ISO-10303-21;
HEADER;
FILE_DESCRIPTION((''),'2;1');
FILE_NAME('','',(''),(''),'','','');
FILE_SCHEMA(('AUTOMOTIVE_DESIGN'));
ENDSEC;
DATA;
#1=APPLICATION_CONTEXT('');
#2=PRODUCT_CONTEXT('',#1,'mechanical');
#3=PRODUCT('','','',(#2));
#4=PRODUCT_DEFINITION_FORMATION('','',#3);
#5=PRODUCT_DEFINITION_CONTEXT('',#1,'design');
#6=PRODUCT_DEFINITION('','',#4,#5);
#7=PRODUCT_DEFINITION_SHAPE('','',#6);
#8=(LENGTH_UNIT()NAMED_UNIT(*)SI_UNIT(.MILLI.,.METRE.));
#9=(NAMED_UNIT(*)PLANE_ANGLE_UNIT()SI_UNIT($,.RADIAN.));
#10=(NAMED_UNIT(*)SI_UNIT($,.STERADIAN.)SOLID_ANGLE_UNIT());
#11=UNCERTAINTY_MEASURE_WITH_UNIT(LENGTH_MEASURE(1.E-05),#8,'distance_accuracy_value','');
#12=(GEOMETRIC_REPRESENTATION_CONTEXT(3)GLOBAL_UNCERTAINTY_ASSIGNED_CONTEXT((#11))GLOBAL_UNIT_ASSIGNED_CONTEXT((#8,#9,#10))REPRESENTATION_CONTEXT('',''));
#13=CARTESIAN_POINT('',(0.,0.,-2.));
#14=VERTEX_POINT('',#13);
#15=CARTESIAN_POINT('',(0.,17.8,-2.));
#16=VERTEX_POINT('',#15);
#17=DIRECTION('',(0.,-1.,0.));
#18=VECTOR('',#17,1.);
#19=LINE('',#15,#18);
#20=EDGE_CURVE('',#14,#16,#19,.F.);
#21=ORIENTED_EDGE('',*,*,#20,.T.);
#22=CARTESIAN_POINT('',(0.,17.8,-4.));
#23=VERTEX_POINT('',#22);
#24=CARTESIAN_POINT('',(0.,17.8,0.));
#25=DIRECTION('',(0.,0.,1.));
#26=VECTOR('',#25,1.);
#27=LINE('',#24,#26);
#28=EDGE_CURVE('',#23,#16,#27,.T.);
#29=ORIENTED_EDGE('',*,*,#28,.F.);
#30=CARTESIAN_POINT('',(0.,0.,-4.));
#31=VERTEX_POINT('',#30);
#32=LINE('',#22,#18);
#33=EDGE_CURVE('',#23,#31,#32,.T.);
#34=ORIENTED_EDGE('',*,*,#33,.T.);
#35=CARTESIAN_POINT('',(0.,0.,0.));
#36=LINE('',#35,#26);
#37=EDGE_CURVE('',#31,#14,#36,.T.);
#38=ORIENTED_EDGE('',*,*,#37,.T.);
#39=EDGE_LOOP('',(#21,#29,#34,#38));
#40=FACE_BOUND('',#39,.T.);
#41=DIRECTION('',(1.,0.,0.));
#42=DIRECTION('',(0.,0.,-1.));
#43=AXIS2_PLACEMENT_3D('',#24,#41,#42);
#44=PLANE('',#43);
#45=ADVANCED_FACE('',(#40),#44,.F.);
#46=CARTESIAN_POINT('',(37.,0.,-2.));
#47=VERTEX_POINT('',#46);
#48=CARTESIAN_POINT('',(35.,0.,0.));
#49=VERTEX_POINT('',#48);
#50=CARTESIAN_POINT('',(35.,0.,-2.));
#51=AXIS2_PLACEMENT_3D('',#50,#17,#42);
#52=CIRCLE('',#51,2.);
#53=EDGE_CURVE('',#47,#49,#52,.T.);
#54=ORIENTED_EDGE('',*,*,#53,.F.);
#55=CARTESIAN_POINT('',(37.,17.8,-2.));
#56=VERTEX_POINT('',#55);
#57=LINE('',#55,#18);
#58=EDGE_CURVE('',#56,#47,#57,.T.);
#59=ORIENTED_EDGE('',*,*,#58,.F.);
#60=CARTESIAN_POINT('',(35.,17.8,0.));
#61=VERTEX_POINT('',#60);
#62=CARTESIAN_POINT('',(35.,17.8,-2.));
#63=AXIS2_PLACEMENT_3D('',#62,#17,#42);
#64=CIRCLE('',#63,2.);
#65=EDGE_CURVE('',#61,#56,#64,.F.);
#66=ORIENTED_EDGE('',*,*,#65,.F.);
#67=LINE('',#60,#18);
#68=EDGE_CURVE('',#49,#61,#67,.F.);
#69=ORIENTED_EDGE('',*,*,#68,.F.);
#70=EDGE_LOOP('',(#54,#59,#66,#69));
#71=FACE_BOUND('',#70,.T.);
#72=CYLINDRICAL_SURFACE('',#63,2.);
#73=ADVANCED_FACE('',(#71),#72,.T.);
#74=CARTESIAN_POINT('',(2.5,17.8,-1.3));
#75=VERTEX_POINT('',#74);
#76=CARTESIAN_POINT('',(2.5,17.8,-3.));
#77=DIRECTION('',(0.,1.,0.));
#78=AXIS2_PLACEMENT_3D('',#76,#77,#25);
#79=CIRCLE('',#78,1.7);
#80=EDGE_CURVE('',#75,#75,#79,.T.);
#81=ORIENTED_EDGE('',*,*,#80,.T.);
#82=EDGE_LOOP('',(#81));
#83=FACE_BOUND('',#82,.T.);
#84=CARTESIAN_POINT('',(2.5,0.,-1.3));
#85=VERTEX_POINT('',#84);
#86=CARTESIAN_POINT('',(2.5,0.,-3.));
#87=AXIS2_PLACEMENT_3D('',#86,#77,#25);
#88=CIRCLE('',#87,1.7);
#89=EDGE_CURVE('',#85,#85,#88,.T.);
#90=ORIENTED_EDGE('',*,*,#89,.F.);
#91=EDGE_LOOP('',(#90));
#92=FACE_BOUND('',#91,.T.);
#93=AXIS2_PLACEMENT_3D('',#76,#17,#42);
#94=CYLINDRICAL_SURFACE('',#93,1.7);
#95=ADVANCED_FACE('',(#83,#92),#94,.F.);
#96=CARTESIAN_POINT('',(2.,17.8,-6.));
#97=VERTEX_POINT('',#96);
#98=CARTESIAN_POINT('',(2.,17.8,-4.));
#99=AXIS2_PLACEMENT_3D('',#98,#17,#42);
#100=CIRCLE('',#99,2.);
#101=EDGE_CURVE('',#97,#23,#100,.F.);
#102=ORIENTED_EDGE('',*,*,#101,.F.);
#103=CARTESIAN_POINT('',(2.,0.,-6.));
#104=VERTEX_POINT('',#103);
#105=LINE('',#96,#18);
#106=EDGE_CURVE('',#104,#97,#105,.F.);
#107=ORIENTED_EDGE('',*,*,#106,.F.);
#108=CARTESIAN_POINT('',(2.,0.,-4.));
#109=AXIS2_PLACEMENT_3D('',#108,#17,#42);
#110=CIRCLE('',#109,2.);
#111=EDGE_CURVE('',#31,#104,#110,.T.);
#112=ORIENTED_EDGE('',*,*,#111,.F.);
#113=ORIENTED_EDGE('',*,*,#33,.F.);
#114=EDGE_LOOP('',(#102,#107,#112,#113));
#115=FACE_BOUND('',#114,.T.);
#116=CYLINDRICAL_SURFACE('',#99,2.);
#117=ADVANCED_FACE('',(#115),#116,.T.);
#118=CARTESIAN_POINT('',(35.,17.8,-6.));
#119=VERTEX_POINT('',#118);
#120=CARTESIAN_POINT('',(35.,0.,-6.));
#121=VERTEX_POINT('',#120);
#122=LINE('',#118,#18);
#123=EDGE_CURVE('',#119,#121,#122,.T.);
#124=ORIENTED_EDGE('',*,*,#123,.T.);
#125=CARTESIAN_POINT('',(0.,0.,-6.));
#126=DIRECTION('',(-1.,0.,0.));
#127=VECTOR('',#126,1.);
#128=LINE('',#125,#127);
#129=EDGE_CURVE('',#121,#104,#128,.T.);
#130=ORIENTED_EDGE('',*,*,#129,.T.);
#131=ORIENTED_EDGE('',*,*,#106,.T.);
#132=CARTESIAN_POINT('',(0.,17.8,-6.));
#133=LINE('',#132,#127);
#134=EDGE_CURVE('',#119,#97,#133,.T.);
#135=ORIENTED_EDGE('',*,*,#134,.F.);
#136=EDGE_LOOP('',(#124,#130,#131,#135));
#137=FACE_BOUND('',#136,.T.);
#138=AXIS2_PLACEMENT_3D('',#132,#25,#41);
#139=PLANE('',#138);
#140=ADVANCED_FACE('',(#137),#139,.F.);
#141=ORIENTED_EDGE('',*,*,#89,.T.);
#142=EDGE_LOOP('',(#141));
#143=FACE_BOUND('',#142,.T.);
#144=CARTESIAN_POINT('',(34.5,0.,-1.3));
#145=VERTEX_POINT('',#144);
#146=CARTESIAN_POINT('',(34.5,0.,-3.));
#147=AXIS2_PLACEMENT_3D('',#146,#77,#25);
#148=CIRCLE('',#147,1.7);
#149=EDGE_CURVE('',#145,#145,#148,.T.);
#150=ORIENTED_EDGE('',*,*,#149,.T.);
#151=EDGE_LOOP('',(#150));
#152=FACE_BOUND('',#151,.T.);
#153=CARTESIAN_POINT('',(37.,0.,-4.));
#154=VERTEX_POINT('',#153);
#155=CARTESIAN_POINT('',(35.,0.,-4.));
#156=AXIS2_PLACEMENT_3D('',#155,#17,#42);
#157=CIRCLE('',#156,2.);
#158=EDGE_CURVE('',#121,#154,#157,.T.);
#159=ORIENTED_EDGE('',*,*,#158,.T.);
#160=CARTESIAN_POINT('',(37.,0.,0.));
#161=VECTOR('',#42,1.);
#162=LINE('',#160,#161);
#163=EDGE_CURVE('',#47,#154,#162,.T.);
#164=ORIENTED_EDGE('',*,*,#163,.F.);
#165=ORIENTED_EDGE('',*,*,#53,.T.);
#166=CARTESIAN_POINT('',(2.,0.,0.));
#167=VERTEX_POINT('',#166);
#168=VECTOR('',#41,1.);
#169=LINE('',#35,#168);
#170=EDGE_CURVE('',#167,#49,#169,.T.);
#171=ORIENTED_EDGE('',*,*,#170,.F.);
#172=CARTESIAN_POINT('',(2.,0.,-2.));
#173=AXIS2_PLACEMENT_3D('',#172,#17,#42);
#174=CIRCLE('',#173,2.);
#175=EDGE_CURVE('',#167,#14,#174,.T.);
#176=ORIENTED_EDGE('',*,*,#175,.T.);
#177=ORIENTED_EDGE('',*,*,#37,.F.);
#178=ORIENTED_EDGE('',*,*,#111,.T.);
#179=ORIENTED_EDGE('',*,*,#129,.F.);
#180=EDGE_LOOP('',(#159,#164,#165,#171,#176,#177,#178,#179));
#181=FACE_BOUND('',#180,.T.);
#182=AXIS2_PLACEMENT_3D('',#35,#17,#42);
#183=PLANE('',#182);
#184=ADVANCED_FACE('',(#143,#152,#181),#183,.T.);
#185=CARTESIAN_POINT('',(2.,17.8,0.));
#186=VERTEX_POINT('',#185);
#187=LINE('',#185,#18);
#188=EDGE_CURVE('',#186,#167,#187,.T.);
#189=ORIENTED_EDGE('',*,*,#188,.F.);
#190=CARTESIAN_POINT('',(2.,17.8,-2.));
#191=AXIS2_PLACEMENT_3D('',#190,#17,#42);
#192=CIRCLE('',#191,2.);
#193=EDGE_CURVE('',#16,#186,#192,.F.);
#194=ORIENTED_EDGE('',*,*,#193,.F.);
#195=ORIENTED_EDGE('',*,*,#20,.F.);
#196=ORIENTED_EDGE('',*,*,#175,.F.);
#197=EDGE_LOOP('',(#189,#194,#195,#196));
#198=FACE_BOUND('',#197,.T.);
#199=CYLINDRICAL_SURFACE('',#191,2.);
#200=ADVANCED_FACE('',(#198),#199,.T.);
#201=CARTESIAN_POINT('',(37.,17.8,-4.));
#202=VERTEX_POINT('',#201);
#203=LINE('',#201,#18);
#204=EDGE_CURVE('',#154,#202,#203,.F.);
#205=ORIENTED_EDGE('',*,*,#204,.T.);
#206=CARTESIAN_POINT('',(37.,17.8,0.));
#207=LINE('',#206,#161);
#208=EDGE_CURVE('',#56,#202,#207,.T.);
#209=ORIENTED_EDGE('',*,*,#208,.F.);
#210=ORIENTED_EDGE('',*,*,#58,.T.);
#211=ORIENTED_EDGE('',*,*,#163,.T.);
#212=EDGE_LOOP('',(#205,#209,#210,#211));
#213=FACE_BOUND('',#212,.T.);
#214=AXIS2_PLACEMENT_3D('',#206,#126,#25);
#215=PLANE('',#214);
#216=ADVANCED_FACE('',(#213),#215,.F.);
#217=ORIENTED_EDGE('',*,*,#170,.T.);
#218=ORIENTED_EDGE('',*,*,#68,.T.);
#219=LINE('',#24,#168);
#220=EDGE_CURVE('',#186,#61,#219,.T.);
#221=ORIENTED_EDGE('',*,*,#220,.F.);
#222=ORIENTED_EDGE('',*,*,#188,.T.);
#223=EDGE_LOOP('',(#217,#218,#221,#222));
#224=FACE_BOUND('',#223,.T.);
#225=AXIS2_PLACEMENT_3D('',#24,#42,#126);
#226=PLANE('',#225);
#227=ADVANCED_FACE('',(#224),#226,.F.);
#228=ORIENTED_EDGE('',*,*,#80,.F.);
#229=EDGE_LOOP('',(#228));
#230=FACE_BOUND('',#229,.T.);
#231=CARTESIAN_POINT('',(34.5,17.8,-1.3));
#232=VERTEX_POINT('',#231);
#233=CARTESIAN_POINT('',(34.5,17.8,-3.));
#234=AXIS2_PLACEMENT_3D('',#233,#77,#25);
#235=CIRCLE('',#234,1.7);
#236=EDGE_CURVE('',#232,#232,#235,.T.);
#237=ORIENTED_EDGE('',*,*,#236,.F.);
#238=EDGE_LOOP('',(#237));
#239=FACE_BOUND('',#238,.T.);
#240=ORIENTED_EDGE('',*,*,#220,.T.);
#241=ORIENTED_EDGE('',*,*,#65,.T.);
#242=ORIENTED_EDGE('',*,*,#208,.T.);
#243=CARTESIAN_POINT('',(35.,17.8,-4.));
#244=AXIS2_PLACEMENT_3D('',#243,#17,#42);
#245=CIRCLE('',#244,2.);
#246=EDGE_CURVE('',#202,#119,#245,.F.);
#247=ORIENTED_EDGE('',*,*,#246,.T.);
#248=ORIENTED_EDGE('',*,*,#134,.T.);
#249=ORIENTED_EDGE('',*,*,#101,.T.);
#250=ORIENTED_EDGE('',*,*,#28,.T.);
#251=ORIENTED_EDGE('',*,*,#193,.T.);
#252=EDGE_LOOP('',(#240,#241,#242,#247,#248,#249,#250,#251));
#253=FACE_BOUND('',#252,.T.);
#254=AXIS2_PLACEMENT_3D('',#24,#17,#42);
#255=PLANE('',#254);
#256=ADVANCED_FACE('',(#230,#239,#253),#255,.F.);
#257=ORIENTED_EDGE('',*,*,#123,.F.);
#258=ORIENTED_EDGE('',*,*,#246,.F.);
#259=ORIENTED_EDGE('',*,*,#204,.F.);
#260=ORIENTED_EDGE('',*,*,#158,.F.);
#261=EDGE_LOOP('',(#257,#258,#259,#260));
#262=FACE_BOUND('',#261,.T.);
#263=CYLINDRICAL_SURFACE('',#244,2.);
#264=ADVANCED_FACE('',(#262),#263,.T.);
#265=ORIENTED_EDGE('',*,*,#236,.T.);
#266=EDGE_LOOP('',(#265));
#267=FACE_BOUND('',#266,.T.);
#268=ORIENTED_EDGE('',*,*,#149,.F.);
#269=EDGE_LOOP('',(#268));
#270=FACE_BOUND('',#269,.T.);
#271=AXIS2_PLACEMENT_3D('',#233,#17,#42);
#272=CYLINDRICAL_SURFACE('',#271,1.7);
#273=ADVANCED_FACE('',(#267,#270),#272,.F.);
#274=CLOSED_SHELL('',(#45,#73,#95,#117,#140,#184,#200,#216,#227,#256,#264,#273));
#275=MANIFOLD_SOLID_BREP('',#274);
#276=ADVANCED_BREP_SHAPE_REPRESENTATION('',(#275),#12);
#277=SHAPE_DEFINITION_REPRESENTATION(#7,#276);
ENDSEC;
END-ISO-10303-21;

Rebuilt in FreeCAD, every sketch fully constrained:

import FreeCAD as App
import Part
import Sketcher
from FreeCAD import Vector
Q = App.Units.Quantity


def edges_at(feature, points):
    """Names of the edges that pass closest to the given points."""
    edges = feature.Shape.Edges
    near = lambda p: min(range(len(edges)), key=lambda i: edges[i].distToShape(Part.Vertex(*p))[0])
    return sorted({f"Edge{near(p) + 1}" for p in points})


def add_polygon(sketch, points):
    """Adds a closed chain of lines whose ends are joined by coincident constraints."""
    first, n = sketch.GeometryCount, len(points)
    for a, b in zip(points, points[1:] + points[:1]):
        sketch.addGeometry(Part.LineSegment(App.Vector(*a, 0), App.Vector(*b, 0)), False)
    for i in range(n):
        sketch.addConstraint(Sketcher.Constraint("Coincident", first + i, 2, first + (i + 1) % n, 1))

doc = App.newDocument("Part")
body = doc.addObject("PartDesign::Body", "Body")

sketch1 = body.newObject("Sketcher::SketchObject", "Sketch")
sketch1.AttachmentSupport = (doc.getObject("XZ_Plane"), [""])
sketch1.MapMode = "FlatFace"
add_polygon(sketch1, [(0, -6), (0, 0), (37, 0), (37, -6)])
sketch1.addGeometry(Part.Circle(Vector(2.5, -3, 0), Vector(0, 0, 1), 1.7), False)
sketch1.addGeometry(Part.Circle(Vector(34.5, -3, 0), Vector(0, 0, 1), 1.7), False)
sketch1.addConstraint([
    Sketcher.Constraint("Vertical", 0),
    Sketcher.Constraint("Horizontal", 1),
    Sketcher.Constraint("Vertical", 2),
    Sketcher.Constraint("Horizontal", 3),
    Sketcher.Constraint("Coincident", 0, 2, -1, 1),
    Sketcher.Constraint("Equal", 4, 5),
    Sketcher.Constraint("Horizontal", 4, 3, 5, 3),
    Sketcher.Constraint("Diameter", 4, Q("3.4 mm")),
    Sketcher.Constraint("DistanceX", 1, 1, 1, 2, Q("37 mm")),
    Sketcher.Constraint("DistanceY", 0, 1, 0, 2, Q("6 mm")),
    Sketcher.Constraint("DistanceY", 4, 3, -1, 1, Q("3 mm")),
    Sketcher.Constraint("DistanceX", 4, 3, 5, 3, Q("32 mm")),
    Sketcher.Constraint("DistanceX", -1, 1, 4, 3, Q("2.5 mm")),
])
pad1 = body.newObject("PartDesign::Pad", "Pad")
pad1.Profile = sketch1
pad1.Length = 17.8
pad1.Reversed = True
doc.recompute()

fillet = body.newObject("PartDesign::Fillet", "Fillet")
fillet.Base = (pad1, edges_at(pad1, [
    (0, 8.9, -6),
    (37, 8.9, -6),
    (37, 8.9, 0),
    (0, 8.9, 0),
]))
fillet.Radius = 2

doc.recompute()
